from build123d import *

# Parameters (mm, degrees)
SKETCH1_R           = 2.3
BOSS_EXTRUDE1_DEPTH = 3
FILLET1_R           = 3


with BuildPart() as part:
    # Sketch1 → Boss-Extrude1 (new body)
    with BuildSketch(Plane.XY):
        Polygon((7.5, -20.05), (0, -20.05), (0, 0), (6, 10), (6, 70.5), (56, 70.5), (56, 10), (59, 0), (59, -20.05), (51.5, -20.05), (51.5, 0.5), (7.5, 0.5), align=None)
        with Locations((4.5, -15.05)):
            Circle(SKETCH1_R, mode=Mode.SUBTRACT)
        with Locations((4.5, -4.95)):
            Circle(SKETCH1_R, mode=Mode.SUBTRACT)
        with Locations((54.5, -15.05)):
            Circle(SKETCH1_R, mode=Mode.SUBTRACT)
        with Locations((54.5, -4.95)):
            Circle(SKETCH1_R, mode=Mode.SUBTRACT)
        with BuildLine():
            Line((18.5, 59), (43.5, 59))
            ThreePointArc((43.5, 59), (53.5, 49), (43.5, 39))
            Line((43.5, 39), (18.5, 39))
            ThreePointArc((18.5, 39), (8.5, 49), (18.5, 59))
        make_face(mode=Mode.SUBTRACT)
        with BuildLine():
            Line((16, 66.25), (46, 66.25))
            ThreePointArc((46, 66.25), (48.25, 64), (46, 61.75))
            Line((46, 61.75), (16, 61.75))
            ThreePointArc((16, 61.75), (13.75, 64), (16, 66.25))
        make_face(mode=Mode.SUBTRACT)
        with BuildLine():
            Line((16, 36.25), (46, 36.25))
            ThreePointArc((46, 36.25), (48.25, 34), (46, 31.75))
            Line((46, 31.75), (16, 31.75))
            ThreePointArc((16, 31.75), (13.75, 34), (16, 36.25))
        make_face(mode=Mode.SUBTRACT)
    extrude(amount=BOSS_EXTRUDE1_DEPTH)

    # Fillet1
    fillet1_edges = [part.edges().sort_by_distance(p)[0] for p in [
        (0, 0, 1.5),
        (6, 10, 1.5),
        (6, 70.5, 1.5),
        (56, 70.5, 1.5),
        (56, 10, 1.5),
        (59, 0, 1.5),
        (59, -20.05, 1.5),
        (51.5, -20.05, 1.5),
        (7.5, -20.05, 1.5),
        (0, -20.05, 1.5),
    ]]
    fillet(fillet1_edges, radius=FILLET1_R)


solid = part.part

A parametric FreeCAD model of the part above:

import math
import FreeCAD as App
import Part
import Sketcher


def edges_at(feature, points):
    """Names of the edges that pass closest to the given points."""
    edges = feature.Shape.Edges
    near = lambda p: min(range(len(edges)), key=lambda i: edges[i].distToShape(Part.Vertex(*p))[0])
    return sorted({f"Edge{near(p) + 1}" for p in points})

doc = App.newDocument("Part")
body = doc.addObject("PartDesign::Body", "Body")

sketch1 = body.newObject("Sketcher::SketchObject", "Sketch")
sketch1.AttachmentSupport = (doc.getObject("XY_Plane"), [""])
sketch1.MapMode = "FlatFace"
sketch1.addGeometry(Part.LineSegment(App.Vector(0, -20.1, 0), App.Vector(7.5, -20.1, 0)), False)
sketch1.addGeometry(Part.LineSegment(App.Vector(7.5, -20.1, 0), App.Vector(7.5, 0.5, 0)), False)
sketch1.addGeometry(Part.LineSegment(App.Vector(7.5, 0.5, 0), App.Vector(51.5, 0.5, 0)), False)
sketch1.addGeometry(Part.LineSegment(App.Vector(51.5, 0.5, 0), App.Vector(51.5, -20.1, 0)), False)
sketch1.addGeometry(Part.LineSegment(App.Vector(51.5, -20.1, 0), App.Vector(59, -20.1, 0)), False)
sketch1.addGeometry(Part.LineSegment(App.Vector(59, -20.1, 0), App.Vector(59, 0, 0)), False)
sketch1.addGeometry(Part.LineSegment(App.Vector(59, 0, 0), App.Vector(56, 10, 0)), False)
sketch1.addGeometry(Part.LineSegment(App.Vector(56, 10, 0), App.Vector(56, 70.5, 0)), False)
sketch1.addGeometry(Part.LineSegment(App.Vector(56, 70.5, 0), App.Vector(6, 70.5, 0)), False)
sketch1.addGeometry(Part.LineSegment(App.Vector(6, 70.5, 0), App.Vector(6, 10, 0)), False)
sketch1.addGeometry(Part.LineSegment(App.Vector(6, 10, 0), App.Vector(0, 0, 0)), False)
sketch1.addGeometry(Part.LineSegment(App.Vector(0, 0, 0), App.Vector(0, -20.1, 0)), False)
sketch1.addGeometry(Part.Circle(App.Vector(54.5, -15.1, 0), App.Vector(0, 0, 1), 2.3), False)
sketch1.addGeometry(Part.Circle(App.Vector(54.5, -5, 0), App.Vector(0, 0, 1), 2.3), False)
sketch1.addGeometry(Part.Circle(App.Vector(4.5, -15.1, 0), App.Vector(0, 0, 1), 2.3), False)
sketch1.addGeometry(Part.Circle(App.Vector(4.5, -5, 0), App.Vector(0, 0, 1), 2.3), False)
sketch1.addGeometry(Part.LineSegment(App.Vector(16, 36.2, 0), App.Vector(46, 36.2, 0)), False)
sketch1.addGeometry(Part.ArcOfCircle(Part.Circle(App.Vector(46, 34, 0), App.Vector(0, 0, 1), 2.2), math.radians(-90), math.radians(90)), False)
sketch1.addGeometry(Part.LineSegment(App.Vector(46, 31.8, 0), App.Vector(16, 31.8, 0)), False)
sketch1.addGeometry(Part.ArcOfCircle(Part.Circle(App.Vector(16, 34, 0), App.Vector(0, 0, 1), 2.2), math.radians(90), math.radians(270)), False)
sketch1.addGeometry(Part.LineSegment(App.Vector(18.5, 59, 0), App.Vector(43.5, 59, 0)), False)
sketch1.addGeometry(Part.ArcOfCircle(Part.Circle(App.Vector(43.5, 49, 0), App.Vector(0, 0, 1), 10), math.radians(-90), math.radians(90)), False)
sketch1.addGeometry(Part.LineSegment(App.Vector(43.5, 39, 0), App.Vector(18.5, 39, 0)), False)
sketch1.addGeometry(Part.ArcOfCircle(Part.Circle(App.Vector(18.5, 49, 0), App.Vector(0, 0, 1), 10), math.radians(90), math.radians(270)), False)
sketch1.addGeometry(Part.LineSegment(App.Vector(16, 66.2, 0), App.Vector(46, 66.2, 0)), False)
sketch1.addGeometry(Part.ArcOfCircle(Part.Circle(App.Vector(46, 64, 0), App.Vector(0, 0, 1), 2.2), math.radians(-90), math.radians(90)), False)
sketch1.addGeometry(Part.LineSegment(App.Vector(46, 61.8, 0), App.Vector(16, 61.8, 0)), False)
sketch1.addGeometry(Part.ArcOfCircle(Part.Circle(App.Vector(16, 64, 0), App.Vector(0, 0, 1), 2.2), math.radians(90), math.radians(270)), False)
sketch1.addConstraint(Sketcher.Constraint("Coincident", 0, 2, 1, 1))
sketch1.addConstraint(Sketcher.Constraint("Coincident", 1, 2, 2, 1))
sketch1.addConstraint(Sketcher.Constraint("Coincident", 2, 2, 3, 1))
sketch1.addConstraint(Sketcher.Constraint("Coincident", 3, 2, 4, 1))
sketch1.addConstraint(Sketcher.Constraint("Coincident", 4, 2, 5, 1))
sketch1.addConstraint(Sketcher.Constraint("Coincident", 5, 2, 6, 1))
sketch1.addConstraint(Sketcher.Constraint("Coincident", 6, 2, 7, 1))
sketch1.addConstraint(Sketcher.Constraint("Coincident", 7, 2, 8, 1))
sketch1.addConstraint(Sketcher.Constraint("Coincident", 8, 2, 9, 1))
sketch1.addConstraint(Sketcher.Constraint("Coincident", 9, 2, 10, 1))
sketch1.addConstraint(Sketcher.Constraint("Coincident", 10, 2, 11, 1))
sketch1.addConstraint(Sketcher.Constraint("Coincident", 11, 2, 0, 1))
sketch1.addConstraint(Sketcher.Constraint("Tangent", 16, 2, 17, 2))
sketch1.addConstraint(Sketcher.Constraint("Tangent", 17, 1, 18, 1))
sketch1.addConstraint(Sketcher.Constraint("Tangent", 18, 2, 19, 2))
sketch1.addConstraint(Sketcher.Constraint("Tangent", 19, 1, 16, 1))
sketch1.addConstraint(Sketcher.Constraint("Tangent", 20, 2, 21, 2))
sketch1.addConstraint(Sketcher.Constraint("Tangent", 21, 1, 22, 1))
sketch1.addConstraint(Sketcher.Constraint("Tangent", 22, 2, 23, 2))
sketch1.addConstraint(Sketcher.Constraint("Tangent", 23, 1, 20, 1))
sketch1.addConstraint(Sketcher.Constraint("Tangent", 24, 2, 25, 2))
sketch1.addConstraint(Sketcher.Constraint("Tangent", 25, 1, 26, 1))
sketch1.addConstraint(Sketcher.Constraint("Tangent", 26, 2, 27, 2))
sketch1.addConstraint(Sketcher.Constraint("Tangent", 27, 1, 24, 1))
sketch1.addConstraint(Sketcher.Constraint("Horizontal", 0))
sketch1.addConstraint(Sketcher.Constraint("Vertical", 1))
sketch1.addConstraint(Sketcher.Constraint("Horizontal", 2))
sketch1.addConstraint(Sketcher.Constraint("Vertical", 3))
sketch1.addConstraint(Sketcher.Constraint("Horizontal", 4))
sketch1.addConstraint(Sketcher.Constraint("Vertical", 5))
sketch1.addConstraint(Sketcher.Constraint("Vertical", 7))
sketch1.addConstraint(Sketcher.Constraint("Horizontal", 8))
sketch1.addConstraint(Sketcher.Constraint("Vertical", 9))
sketch1.addConstraint(Sketcher.Constraint("Vertical", 11))
sketch1.addConstraint(Sketcher.Constraint("Horizontal", 16))
sketch1.addConstraint(Sketcher.Constraint("Horizontal", 18))
sketch1.addConstraint(Sketcher.Constraint("Horizontal", 20))
sketch1.addConstraint(Sketcher.Constraint("Horizontal", 22))
sketch1.addConstraint(Sketcher.Constraint("Horizontal", 24))
sketch1.addConstraint(Sketcher.Constraint("Horizontal", 26))
sketch1.addConstraint(Sketcher.Constraint("Coincident", 10, 2, -1, 1))
sketch1.addConstraint(Sketcher.Constraint("Equal", 12, 13))
sketch1.addConstraint(Sketcher.Constraint("Equal", 13, 14))
sketch1.addConstraint(Sketcher.Constraint("Equal", 14, 15))
sketch1.addConstraint(Sketcher.Constraint("Equal", 19, 25))
sketch1.addConstraint(Sketcher.Constraint("PointOnObject", 5, 2, -1))
sketch1.addConstraint(Sketcher.Constraint("Horizontal", 12, 3, 14, 3))
sketch1.addConstraint(Sketcher.Constraint("Horizontal", 13, 3, 15, 3))
sketch1.addConstraint(Sketcher.Constraint("Horizontal", 0, 2, 3, 2))
sketch1.addConstraint(Sketcher.Constraint("Horizontal", 6, 2, 9, 2))
sketch1.addConstraint(Sketcher.Constraint("Vertical", 12, 3, 13, 3))
sketch1.addConstraint(Sketcher.Constraint("Vertical", 14, 3, 15, 3))
sketch1.addConstraint(Sketcher.Constraint("Vertical", 17, 3, 25, 3))
sketch1.addConstraint(Sketcher.Constraint("Vertical", 19, 3, 27, 3))
sketch1.addConstraint(Sketcher.Constraint("Equal", 0, 4))
sketch1.addConstraint(Sketcher.Constraint("Radius", 21, 10.0))
sketch1.addConstraint(Sketcher.Constraint("Diameter", 12, 4.6))
sketch1.addConstraint(Sketcher.Constraint("DistanceX", 2, 1, 2, 2, 44.0))
sketch1.addConstraint(Sketcher.Constraint("DistanceX", 8, 2, 8, 1, 50.0))
sketch1.addConstraint(Sketcher.Constraint("DistanceX", 16, 1, 16, 2, 30.0))
sketch1.addConstraint(Sketcher.Constraint("DistanceX", 20, 1, 20, 2, 25.0))
sketch1.addConstraint(Sketcher.Constraint("Radius", 17, 2.25))
sketch1.addConstraint(Sketcher.Constraint("DistanceX", 0, 1, 0, 2, 7.5))
sketch1.addConstraint(Sketcher.Constraint("DistanceY", 7, 1, 7, 2, 60.5))
sketch1.addConstraint(Sketcher.Constraint("DistanceX", -1, 1, 17, 3, 46.0))
sketch1.addConstraint(Sketcher.Constraint("DistanceY", -1, 1, 17, 3, 34.0))
sketch1.addConstraint(Sketcher.Constraint("DistanceY", -1, 1, 21, 3, 49.0))
sketch1.addConstraint(Sketcher.Constraint("DistanceY", -1, 1, 25, 3, 64.0))
sketch1.addConstraint(Sketcher.Constraint("DistanceX", -1, 1, 6, 2, 56.0))
sketch1.addConstraint(Sketcher.Constraint("DistanceY", -1, 1, 6, 2, 10.0))
sketch1.addConstraint(Sketcher.Constraint("DistanceX", 14, 3, 12, 3, 50.0))
sketch1.addConstraint(Sketcher.Constraint("DistanceX", 21, 3, 13, 3, 11.0))
sketch1.addConstraint(Sketcher.Constraint("DistanceX", 14, 3, 0, 2, 3.0))
sketch1.addConstraint(Sketcher.Constraint("DistanceY", 0, 2, 14, 3, 5.0))
sketch1.addConstraint(Sketcher.Constraint("DistanceY", 1, 1, 1, 2, 20.55))
sketch1.addConstraint(Sketcher.Constraint("DistanceY", 5, 1, 5, 2, 20.05))
sketch1.addConstraint(Sketcher.Constraint("DistanceY", 12, 3, 13, 3, 10.1))
pad1 = body.newObject("PartDesign::Pad", "Pad")
pad1.Profile = sketch1
pad1.Length = 3
doc.recompute()

fillet = body.newObject("PartDesign::Fillet", "Fillet")
fillet.Base = (pad1, edges_at(pad1, [
    (0, 0, 1.5),
    (6, 10, 1.5),
    (6, 70.5, 1.5),
    (56, 70.5, 1.5),
    (56, 10, 1.5),
    (59, 0, 1.5),
    (59, -20.05, 1.5),
    (51.5, -20.05, 1.5),
    (7.5, -20.05, 1.5),
    (0, -20.05, 1.5),
]))
fillet.Radius = 3

doc.recompute()
